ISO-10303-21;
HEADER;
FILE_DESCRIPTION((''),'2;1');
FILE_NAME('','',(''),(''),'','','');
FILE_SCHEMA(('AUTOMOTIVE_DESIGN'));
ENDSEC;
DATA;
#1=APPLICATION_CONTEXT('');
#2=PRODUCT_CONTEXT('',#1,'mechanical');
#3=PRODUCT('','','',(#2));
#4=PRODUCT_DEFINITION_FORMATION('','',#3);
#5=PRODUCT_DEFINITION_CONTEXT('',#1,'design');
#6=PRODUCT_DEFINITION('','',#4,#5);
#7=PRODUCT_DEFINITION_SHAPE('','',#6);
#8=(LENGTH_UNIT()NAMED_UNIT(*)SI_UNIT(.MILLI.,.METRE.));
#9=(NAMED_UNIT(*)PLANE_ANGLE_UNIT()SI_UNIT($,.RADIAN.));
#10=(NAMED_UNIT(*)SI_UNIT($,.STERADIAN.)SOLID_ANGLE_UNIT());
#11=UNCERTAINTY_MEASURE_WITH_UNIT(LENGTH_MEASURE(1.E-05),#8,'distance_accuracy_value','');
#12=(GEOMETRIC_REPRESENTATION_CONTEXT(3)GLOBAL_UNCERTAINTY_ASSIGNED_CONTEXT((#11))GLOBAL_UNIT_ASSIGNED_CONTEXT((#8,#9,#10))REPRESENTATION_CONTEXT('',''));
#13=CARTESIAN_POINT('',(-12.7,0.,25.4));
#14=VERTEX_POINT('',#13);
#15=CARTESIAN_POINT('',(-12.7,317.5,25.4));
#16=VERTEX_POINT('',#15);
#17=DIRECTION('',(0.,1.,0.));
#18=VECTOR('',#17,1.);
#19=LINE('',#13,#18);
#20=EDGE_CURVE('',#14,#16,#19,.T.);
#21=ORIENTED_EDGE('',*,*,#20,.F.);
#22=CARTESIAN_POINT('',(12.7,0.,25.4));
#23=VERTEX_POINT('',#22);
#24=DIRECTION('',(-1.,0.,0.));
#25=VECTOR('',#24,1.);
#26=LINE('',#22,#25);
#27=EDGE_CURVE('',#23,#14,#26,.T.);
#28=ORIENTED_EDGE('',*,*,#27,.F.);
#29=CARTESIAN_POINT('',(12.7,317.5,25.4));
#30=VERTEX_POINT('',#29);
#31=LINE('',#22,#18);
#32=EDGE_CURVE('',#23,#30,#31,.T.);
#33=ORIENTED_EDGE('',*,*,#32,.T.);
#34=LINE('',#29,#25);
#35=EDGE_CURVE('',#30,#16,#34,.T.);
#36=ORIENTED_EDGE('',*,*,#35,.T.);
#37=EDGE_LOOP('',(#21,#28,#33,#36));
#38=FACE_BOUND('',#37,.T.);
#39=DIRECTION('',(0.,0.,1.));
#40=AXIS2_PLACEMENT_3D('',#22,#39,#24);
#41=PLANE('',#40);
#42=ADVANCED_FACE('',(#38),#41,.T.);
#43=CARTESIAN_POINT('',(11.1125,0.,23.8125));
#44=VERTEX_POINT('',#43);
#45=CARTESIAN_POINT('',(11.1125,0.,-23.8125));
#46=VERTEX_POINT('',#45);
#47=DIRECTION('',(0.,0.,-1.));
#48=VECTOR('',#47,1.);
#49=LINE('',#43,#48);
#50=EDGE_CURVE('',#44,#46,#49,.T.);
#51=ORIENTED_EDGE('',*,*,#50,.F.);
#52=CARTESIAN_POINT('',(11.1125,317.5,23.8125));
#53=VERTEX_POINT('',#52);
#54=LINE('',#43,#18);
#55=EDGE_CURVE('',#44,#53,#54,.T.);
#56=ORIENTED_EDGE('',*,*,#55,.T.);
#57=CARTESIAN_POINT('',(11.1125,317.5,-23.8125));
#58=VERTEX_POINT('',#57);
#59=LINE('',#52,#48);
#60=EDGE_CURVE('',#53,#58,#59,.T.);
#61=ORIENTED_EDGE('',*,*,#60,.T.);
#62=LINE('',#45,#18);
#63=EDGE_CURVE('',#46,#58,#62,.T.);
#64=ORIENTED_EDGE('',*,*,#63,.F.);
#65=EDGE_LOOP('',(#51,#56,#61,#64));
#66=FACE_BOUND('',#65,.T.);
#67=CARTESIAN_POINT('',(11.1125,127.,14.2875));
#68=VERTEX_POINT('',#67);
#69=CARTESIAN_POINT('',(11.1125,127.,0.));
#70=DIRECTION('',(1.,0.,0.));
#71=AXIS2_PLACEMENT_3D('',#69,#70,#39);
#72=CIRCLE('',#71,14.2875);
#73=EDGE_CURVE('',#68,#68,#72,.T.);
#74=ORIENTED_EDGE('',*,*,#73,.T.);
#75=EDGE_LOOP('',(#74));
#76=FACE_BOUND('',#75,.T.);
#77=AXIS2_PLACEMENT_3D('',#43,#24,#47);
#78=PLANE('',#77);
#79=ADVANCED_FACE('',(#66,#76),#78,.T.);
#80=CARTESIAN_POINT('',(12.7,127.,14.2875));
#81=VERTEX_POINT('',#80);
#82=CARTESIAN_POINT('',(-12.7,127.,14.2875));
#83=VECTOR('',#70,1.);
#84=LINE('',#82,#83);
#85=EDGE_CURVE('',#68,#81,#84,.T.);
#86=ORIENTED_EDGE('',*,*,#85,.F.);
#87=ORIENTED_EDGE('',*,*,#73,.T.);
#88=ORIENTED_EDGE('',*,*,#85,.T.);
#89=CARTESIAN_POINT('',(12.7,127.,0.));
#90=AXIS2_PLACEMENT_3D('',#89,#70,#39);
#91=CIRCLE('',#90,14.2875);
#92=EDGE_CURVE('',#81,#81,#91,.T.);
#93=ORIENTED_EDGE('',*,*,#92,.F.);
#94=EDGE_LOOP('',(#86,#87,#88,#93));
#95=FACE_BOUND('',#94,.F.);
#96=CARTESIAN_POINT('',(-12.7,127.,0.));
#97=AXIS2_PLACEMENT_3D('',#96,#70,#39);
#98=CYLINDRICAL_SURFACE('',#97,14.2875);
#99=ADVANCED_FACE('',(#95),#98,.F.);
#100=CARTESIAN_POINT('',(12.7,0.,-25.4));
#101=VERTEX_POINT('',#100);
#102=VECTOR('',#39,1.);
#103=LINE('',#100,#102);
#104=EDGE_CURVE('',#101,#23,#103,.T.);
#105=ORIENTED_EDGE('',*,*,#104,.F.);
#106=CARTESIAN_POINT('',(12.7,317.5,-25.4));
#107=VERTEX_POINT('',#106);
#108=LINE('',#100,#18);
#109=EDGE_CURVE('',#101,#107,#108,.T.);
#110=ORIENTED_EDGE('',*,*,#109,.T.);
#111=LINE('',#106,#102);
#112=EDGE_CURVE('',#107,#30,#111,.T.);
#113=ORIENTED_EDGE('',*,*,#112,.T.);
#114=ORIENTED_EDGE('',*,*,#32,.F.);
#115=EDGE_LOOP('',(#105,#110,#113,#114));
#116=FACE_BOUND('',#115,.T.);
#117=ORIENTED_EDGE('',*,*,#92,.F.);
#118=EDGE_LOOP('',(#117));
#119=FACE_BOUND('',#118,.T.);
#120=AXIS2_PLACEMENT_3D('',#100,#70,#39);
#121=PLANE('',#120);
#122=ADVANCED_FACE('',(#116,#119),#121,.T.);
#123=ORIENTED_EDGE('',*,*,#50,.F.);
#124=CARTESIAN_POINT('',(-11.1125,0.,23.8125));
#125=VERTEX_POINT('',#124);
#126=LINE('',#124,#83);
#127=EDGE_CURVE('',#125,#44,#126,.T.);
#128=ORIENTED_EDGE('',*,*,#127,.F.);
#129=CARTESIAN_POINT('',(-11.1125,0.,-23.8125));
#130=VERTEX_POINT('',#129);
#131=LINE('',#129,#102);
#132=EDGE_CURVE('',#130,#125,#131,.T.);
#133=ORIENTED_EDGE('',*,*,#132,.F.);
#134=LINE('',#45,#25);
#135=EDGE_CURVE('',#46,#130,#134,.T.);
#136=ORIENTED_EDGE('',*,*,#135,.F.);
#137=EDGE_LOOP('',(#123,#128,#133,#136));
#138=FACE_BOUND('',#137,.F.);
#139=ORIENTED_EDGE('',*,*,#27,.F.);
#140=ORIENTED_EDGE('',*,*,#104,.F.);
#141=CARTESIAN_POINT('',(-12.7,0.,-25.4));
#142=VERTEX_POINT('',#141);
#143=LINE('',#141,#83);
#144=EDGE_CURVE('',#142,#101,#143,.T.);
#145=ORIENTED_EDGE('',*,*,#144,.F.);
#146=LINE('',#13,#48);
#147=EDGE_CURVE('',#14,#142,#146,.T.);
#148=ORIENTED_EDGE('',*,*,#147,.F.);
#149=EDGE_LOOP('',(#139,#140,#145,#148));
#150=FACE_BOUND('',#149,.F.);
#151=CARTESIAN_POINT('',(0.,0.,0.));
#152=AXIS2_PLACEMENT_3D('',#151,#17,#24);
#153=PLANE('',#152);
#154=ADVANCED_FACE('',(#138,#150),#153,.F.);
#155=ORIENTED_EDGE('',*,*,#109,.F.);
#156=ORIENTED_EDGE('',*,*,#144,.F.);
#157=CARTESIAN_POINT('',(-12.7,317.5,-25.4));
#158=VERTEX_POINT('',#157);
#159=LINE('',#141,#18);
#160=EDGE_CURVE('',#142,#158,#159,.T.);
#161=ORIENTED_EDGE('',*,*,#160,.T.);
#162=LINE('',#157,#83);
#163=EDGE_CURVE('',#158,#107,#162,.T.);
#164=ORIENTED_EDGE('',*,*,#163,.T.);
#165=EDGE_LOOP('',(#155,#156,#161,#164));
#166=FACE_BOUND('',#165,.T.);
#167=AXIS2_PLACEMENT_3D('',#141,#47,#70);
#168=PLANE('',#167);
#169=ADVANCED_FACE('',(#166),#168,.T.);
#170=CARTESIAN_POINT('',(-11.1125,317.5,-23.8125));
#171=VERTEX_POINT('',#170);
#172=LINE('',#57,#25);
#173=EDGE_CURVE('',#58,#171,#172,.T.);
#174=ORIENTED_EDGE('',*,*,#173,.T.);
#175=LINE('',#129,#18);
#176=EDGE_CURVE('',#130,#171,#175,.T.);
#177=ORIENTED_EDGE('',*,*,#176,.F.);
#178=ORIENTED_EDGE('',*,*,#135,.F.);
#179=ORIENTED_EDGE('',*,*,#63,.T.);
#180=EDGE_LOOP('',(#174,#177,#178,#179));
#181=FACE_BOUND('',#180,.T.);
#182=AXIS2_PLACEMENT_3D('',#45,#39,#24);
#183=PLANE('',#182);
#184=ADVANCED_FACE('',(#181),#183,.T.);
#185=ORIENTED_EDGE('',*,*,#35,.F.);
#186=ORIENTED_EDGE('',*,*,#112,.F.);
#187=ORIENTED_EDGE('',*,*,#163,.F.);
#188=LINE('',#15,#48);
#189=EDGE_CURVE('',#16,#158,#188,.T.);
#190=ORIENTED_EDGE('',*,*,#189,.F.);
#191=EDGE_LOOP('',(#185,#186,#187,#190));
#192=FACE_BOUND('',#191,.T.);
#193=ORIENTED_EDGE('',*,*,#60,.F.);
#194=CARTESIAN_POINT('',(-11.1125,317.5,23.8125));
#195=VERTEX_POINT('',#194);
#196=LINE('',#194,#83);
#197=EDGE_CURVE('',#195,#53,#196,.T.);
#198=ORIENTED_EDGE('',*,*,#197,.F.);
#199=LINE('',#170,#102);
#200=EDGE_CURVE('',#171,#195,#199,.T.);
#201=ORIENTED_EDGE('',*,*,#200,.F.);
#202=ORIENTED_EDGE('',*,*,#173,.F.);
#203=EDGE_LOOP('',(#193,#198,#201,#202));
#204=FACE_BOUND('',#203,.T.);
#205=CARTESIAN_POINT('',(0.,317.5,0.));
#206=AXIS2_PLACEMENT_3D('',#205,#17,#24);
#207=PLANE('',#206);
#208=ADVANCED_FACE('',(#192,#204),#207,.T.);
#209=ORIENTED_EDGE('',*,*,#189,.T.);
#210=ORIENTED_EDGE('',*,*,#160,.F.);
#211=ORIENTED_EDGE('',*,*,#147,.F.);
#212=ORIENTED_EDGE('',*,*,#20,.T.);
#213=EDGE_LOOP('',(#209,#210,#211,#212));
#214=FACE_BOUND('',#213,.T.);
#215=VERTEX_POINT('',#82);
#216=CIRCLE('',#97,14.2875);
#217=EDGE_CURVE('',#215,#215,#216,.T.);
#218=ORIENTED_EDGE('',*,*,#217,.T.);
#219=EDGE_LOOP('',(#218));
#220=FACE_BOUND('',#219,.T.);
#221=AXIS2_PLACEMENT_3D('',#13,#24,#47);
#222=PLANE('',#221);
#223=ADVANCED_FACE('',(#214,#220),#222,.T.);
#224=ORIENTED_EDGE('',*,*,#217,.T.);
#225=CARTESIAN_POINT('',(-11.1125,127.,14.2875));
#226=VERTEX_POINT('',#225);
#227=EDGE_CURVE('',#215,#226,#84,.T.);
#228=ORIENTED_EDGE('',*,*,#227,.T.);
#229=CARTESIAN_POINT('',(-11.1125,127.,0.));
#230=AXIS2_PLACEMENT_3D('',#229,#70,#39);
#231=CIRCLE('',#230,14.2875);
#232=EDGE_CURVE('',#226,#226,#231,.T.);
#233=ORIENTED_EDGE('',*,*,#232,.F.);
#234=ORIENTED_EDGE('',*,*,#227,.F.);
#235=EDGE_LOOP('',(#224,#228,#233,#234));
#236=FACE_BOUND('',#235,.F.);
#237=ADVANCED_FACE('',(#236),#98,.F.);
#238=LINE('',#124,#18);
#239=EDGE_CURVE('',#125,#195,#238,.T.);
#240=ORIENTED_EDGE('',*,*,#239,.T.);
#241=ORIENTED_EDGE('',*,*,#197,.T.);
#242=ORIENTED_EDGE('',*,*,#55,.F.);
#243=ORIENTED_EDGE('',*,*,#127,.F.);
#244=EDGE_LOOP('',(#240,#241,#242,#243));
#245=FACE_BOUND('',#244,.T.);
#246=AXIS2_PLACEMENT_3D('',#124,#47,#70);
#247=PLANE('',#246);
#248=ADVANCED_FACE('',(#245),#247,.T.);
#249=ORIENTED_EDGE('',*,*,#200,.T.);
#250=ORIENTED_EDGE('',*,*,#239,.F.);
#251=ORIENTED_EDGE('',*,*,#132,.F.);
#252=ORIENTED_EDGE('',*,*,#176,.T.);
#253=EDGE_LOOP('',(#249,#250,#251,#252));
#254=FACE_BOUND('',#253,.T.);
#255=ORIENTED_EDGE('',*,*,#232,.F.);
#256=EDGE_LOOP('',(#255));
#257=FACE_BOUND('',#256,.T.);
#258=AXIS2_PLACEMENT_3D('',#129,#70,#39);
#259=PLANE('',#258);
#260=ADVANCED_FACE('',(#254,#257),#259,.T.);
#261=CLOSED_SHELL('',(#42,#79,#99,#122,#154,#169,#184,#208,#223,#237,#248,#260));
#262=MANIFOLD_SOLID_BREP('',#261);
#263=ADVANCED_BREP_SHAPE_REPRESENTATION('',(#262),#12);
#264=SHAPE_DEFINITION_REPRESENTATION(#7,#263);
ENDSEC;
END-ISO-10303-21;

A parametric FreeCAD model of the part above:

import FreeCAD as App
import Part
import Sketcher

V = App.Vector
Q = App.Units.Quantity

doc = App.newDocument("Part")
params = doc.addObject("Spreadsheet::Sheet", "Params")
for row, (alias, value) in enumerate([
    ("sketch1_width", "1 in"),
    ("sketch1_height", "2 in"),
    ("sketch1_width2", "0.875 in"),
    ("sketch1_height2", "1.875 in"),
    ("pad1_length", "12.5 in"),
    ("sketch2_diameter", "1.125 in"),
    ("hole_diameter", "1.125 in"),
], start=1):
    params.set(f"A{row}", alias)
    params.set(f"B{row}", "=" + value)
    params.setAlias(f"B{row}", alias)

body = doc.addObject("PartDesign::Body", "Body")

sketch1 = doc.addObject("Sketcher::SketchObject", "Sketch")
body.addObject(sketch1)
sketch1.AttachmentSupport = (doc.XZ_Plane, [""])
sketch1.MapMode = "FlatFace"
sketch1.addGeometry(Part.LineSegment(V(-13, 25, 0), V(13, 25, 0)), False)
sketch1.addGeometry(Part.LineSegment(V(13, 25, 0), V(13, -25, 0)), False)
sketch1.addGeometry(Part.LineSegment(V(13, -25, 0), V(-13, -25, 0)), False)
sketch1.addGeometry(Part.LineSegment(V(-13, -25, 0), V(-13, 25, 0)), False)
sketch1.addGeometry(Part.LineSegment(V(11, 24, 0), V(-11, 24, 0)), False)
sketch1.addGeometry(Part.LineSegment(V(-11, 24, 0), V(-11, -24, 0)), False)
sketch1.addGeometry(Part.LineSegment(V(-11, -24, 0), V(11, -24, 0)), False)
sketch1.addGeometry(Part.LineSegment(V(11, -24, 0), V(11, 24, 0)), False)
sketch1.addConstraint(Sketcher.Constraint("Coincident", 0, 2, 1, 1))
sketch1.addConstraint(Sketcher.Constraint("Coincident", 1, 2, 2, 1))
sketch1.addConstraint(Sketcher.Constraint("Coincident", 2, 2, 3, 1))
sketch1.addConstraint(Sketcher.Constraint("Coincident", 3, 2, 0, 1))
sketch1.addConstraint(Sketcher.Constraint("Coincident", 4, 2, 5, 1))
sketch1.addConstraint(Sketcher.Constraint("Coincident", 5, 2, 6, 1))
sketch1.addConstraint(Sketcher.Constraint("Coincident", 6, 2, 7, 1))
sketch1.addConstraint(Sketcher.Constraint("Coincident", 7, 2, 4, 1))
sketch1.addConstraint(Sketcher.Constraint("Horizontal", 0))
sketch1.addConstraint(Sketcher.Constraint("Vertical", 1))
sketch1.addConstraint(Sketcher.Constraint("Horizontal", 2))
sketch1.addConstraint(Sketcher.Constraint("Vertical", 3))
sketch1.addConstraint(Sketcher.Constraint("Horizontal", 4))
sketch1.addConstraint(Sketcher.Constraint("Vertical", 5))
sketch1.addConstraint(Sketcher.Constraint("Horizontal", 6))
sketch1.addConstraint(Sketcher.Constraint("Vertical", 7))
sketch1.addConstraint(Sketcher.Constraint("Symmetric", 0, 2, 2, 2, -1, 1))
sketch1.addConstraint(Sketcher.Constraint("Symmetric", 4, 2, 6, 2, -1, 1))
sketch1.addConstraint(Sketcher.Constraint("DistanceX", 0, 1, 0, 2, Q("1 in")))
sketch1.addConstraint(Sketcher.Constraint("DistanceY", 1, 2, 1, 1, Q("2 in")))
sketch1.addConstraint(Sketcher.Constraint("DistanceX", 4, 2, 4, 1, Q("0.875 in")))
sketch1.addConstraint(Sketcher.Constraint("DistanceY", 5, 2, 5, 1, Q("1.875 in")))
sketch1.setExpression("Constraints[18]", "Params.sketch1_width")
sketch1.setExpression("Constraints[19]", "Params.sketch1_height")
sketch1.setExpression("Constraints[20]", "Params.sketch1_width2")
sketch1.setExpression("Constraints[21]", "Params.sketch1_height2")
pad1 = doc.addObject("PartDesign::Pad", "Pad")
body.addObject(pad1)
pad1.Profile = sketch1
pad1.setExpression("Length", "Params.pad1_length")
pad1.Reversed = True

sketch2 = doc.addObject("Sketcher::SketchObject", "Sketch001")
body.addObject(sketch2)
sketch2.AttachmentSupport = (doc.YZ_Plane, [""])
sketch2.MapMode = "FlatFace"
sketch2.AttachmentOffset = App.Placement(V(0, 0, -0.5 * 25.4), App.Rotation())
sketch2.addGeometry(Part.Circle(V(127, 0, 0), V(0, 0, 1), 14), False)
sketch2.addConstraint(Sketcher.Constraint("PointOnObject", 0, 3, -1))
sketch2.addConstraint(Sketcher.Constraint("Diameter", 0, Q("1.125 in")))
sketch2.addConstraint(Sketcher.Constraint("DistanceX", -1, 1, 0, 3, Q("5 in")))
sketch2.setExpression("Constraints[1]", "Params.sketch2_diameter")
doc.recompute()
hole = doc.addObject("PartDesign::Hole", "Hole")
body.addObject(hole)
hole.Profile = sketch2
hole.ThreadType = "None"
hole.setExpression("Diameter", "Params.hole_diameter")
hole.DepthType = "ThroughAll"
hole.Reversed = True

doc.recompute()
